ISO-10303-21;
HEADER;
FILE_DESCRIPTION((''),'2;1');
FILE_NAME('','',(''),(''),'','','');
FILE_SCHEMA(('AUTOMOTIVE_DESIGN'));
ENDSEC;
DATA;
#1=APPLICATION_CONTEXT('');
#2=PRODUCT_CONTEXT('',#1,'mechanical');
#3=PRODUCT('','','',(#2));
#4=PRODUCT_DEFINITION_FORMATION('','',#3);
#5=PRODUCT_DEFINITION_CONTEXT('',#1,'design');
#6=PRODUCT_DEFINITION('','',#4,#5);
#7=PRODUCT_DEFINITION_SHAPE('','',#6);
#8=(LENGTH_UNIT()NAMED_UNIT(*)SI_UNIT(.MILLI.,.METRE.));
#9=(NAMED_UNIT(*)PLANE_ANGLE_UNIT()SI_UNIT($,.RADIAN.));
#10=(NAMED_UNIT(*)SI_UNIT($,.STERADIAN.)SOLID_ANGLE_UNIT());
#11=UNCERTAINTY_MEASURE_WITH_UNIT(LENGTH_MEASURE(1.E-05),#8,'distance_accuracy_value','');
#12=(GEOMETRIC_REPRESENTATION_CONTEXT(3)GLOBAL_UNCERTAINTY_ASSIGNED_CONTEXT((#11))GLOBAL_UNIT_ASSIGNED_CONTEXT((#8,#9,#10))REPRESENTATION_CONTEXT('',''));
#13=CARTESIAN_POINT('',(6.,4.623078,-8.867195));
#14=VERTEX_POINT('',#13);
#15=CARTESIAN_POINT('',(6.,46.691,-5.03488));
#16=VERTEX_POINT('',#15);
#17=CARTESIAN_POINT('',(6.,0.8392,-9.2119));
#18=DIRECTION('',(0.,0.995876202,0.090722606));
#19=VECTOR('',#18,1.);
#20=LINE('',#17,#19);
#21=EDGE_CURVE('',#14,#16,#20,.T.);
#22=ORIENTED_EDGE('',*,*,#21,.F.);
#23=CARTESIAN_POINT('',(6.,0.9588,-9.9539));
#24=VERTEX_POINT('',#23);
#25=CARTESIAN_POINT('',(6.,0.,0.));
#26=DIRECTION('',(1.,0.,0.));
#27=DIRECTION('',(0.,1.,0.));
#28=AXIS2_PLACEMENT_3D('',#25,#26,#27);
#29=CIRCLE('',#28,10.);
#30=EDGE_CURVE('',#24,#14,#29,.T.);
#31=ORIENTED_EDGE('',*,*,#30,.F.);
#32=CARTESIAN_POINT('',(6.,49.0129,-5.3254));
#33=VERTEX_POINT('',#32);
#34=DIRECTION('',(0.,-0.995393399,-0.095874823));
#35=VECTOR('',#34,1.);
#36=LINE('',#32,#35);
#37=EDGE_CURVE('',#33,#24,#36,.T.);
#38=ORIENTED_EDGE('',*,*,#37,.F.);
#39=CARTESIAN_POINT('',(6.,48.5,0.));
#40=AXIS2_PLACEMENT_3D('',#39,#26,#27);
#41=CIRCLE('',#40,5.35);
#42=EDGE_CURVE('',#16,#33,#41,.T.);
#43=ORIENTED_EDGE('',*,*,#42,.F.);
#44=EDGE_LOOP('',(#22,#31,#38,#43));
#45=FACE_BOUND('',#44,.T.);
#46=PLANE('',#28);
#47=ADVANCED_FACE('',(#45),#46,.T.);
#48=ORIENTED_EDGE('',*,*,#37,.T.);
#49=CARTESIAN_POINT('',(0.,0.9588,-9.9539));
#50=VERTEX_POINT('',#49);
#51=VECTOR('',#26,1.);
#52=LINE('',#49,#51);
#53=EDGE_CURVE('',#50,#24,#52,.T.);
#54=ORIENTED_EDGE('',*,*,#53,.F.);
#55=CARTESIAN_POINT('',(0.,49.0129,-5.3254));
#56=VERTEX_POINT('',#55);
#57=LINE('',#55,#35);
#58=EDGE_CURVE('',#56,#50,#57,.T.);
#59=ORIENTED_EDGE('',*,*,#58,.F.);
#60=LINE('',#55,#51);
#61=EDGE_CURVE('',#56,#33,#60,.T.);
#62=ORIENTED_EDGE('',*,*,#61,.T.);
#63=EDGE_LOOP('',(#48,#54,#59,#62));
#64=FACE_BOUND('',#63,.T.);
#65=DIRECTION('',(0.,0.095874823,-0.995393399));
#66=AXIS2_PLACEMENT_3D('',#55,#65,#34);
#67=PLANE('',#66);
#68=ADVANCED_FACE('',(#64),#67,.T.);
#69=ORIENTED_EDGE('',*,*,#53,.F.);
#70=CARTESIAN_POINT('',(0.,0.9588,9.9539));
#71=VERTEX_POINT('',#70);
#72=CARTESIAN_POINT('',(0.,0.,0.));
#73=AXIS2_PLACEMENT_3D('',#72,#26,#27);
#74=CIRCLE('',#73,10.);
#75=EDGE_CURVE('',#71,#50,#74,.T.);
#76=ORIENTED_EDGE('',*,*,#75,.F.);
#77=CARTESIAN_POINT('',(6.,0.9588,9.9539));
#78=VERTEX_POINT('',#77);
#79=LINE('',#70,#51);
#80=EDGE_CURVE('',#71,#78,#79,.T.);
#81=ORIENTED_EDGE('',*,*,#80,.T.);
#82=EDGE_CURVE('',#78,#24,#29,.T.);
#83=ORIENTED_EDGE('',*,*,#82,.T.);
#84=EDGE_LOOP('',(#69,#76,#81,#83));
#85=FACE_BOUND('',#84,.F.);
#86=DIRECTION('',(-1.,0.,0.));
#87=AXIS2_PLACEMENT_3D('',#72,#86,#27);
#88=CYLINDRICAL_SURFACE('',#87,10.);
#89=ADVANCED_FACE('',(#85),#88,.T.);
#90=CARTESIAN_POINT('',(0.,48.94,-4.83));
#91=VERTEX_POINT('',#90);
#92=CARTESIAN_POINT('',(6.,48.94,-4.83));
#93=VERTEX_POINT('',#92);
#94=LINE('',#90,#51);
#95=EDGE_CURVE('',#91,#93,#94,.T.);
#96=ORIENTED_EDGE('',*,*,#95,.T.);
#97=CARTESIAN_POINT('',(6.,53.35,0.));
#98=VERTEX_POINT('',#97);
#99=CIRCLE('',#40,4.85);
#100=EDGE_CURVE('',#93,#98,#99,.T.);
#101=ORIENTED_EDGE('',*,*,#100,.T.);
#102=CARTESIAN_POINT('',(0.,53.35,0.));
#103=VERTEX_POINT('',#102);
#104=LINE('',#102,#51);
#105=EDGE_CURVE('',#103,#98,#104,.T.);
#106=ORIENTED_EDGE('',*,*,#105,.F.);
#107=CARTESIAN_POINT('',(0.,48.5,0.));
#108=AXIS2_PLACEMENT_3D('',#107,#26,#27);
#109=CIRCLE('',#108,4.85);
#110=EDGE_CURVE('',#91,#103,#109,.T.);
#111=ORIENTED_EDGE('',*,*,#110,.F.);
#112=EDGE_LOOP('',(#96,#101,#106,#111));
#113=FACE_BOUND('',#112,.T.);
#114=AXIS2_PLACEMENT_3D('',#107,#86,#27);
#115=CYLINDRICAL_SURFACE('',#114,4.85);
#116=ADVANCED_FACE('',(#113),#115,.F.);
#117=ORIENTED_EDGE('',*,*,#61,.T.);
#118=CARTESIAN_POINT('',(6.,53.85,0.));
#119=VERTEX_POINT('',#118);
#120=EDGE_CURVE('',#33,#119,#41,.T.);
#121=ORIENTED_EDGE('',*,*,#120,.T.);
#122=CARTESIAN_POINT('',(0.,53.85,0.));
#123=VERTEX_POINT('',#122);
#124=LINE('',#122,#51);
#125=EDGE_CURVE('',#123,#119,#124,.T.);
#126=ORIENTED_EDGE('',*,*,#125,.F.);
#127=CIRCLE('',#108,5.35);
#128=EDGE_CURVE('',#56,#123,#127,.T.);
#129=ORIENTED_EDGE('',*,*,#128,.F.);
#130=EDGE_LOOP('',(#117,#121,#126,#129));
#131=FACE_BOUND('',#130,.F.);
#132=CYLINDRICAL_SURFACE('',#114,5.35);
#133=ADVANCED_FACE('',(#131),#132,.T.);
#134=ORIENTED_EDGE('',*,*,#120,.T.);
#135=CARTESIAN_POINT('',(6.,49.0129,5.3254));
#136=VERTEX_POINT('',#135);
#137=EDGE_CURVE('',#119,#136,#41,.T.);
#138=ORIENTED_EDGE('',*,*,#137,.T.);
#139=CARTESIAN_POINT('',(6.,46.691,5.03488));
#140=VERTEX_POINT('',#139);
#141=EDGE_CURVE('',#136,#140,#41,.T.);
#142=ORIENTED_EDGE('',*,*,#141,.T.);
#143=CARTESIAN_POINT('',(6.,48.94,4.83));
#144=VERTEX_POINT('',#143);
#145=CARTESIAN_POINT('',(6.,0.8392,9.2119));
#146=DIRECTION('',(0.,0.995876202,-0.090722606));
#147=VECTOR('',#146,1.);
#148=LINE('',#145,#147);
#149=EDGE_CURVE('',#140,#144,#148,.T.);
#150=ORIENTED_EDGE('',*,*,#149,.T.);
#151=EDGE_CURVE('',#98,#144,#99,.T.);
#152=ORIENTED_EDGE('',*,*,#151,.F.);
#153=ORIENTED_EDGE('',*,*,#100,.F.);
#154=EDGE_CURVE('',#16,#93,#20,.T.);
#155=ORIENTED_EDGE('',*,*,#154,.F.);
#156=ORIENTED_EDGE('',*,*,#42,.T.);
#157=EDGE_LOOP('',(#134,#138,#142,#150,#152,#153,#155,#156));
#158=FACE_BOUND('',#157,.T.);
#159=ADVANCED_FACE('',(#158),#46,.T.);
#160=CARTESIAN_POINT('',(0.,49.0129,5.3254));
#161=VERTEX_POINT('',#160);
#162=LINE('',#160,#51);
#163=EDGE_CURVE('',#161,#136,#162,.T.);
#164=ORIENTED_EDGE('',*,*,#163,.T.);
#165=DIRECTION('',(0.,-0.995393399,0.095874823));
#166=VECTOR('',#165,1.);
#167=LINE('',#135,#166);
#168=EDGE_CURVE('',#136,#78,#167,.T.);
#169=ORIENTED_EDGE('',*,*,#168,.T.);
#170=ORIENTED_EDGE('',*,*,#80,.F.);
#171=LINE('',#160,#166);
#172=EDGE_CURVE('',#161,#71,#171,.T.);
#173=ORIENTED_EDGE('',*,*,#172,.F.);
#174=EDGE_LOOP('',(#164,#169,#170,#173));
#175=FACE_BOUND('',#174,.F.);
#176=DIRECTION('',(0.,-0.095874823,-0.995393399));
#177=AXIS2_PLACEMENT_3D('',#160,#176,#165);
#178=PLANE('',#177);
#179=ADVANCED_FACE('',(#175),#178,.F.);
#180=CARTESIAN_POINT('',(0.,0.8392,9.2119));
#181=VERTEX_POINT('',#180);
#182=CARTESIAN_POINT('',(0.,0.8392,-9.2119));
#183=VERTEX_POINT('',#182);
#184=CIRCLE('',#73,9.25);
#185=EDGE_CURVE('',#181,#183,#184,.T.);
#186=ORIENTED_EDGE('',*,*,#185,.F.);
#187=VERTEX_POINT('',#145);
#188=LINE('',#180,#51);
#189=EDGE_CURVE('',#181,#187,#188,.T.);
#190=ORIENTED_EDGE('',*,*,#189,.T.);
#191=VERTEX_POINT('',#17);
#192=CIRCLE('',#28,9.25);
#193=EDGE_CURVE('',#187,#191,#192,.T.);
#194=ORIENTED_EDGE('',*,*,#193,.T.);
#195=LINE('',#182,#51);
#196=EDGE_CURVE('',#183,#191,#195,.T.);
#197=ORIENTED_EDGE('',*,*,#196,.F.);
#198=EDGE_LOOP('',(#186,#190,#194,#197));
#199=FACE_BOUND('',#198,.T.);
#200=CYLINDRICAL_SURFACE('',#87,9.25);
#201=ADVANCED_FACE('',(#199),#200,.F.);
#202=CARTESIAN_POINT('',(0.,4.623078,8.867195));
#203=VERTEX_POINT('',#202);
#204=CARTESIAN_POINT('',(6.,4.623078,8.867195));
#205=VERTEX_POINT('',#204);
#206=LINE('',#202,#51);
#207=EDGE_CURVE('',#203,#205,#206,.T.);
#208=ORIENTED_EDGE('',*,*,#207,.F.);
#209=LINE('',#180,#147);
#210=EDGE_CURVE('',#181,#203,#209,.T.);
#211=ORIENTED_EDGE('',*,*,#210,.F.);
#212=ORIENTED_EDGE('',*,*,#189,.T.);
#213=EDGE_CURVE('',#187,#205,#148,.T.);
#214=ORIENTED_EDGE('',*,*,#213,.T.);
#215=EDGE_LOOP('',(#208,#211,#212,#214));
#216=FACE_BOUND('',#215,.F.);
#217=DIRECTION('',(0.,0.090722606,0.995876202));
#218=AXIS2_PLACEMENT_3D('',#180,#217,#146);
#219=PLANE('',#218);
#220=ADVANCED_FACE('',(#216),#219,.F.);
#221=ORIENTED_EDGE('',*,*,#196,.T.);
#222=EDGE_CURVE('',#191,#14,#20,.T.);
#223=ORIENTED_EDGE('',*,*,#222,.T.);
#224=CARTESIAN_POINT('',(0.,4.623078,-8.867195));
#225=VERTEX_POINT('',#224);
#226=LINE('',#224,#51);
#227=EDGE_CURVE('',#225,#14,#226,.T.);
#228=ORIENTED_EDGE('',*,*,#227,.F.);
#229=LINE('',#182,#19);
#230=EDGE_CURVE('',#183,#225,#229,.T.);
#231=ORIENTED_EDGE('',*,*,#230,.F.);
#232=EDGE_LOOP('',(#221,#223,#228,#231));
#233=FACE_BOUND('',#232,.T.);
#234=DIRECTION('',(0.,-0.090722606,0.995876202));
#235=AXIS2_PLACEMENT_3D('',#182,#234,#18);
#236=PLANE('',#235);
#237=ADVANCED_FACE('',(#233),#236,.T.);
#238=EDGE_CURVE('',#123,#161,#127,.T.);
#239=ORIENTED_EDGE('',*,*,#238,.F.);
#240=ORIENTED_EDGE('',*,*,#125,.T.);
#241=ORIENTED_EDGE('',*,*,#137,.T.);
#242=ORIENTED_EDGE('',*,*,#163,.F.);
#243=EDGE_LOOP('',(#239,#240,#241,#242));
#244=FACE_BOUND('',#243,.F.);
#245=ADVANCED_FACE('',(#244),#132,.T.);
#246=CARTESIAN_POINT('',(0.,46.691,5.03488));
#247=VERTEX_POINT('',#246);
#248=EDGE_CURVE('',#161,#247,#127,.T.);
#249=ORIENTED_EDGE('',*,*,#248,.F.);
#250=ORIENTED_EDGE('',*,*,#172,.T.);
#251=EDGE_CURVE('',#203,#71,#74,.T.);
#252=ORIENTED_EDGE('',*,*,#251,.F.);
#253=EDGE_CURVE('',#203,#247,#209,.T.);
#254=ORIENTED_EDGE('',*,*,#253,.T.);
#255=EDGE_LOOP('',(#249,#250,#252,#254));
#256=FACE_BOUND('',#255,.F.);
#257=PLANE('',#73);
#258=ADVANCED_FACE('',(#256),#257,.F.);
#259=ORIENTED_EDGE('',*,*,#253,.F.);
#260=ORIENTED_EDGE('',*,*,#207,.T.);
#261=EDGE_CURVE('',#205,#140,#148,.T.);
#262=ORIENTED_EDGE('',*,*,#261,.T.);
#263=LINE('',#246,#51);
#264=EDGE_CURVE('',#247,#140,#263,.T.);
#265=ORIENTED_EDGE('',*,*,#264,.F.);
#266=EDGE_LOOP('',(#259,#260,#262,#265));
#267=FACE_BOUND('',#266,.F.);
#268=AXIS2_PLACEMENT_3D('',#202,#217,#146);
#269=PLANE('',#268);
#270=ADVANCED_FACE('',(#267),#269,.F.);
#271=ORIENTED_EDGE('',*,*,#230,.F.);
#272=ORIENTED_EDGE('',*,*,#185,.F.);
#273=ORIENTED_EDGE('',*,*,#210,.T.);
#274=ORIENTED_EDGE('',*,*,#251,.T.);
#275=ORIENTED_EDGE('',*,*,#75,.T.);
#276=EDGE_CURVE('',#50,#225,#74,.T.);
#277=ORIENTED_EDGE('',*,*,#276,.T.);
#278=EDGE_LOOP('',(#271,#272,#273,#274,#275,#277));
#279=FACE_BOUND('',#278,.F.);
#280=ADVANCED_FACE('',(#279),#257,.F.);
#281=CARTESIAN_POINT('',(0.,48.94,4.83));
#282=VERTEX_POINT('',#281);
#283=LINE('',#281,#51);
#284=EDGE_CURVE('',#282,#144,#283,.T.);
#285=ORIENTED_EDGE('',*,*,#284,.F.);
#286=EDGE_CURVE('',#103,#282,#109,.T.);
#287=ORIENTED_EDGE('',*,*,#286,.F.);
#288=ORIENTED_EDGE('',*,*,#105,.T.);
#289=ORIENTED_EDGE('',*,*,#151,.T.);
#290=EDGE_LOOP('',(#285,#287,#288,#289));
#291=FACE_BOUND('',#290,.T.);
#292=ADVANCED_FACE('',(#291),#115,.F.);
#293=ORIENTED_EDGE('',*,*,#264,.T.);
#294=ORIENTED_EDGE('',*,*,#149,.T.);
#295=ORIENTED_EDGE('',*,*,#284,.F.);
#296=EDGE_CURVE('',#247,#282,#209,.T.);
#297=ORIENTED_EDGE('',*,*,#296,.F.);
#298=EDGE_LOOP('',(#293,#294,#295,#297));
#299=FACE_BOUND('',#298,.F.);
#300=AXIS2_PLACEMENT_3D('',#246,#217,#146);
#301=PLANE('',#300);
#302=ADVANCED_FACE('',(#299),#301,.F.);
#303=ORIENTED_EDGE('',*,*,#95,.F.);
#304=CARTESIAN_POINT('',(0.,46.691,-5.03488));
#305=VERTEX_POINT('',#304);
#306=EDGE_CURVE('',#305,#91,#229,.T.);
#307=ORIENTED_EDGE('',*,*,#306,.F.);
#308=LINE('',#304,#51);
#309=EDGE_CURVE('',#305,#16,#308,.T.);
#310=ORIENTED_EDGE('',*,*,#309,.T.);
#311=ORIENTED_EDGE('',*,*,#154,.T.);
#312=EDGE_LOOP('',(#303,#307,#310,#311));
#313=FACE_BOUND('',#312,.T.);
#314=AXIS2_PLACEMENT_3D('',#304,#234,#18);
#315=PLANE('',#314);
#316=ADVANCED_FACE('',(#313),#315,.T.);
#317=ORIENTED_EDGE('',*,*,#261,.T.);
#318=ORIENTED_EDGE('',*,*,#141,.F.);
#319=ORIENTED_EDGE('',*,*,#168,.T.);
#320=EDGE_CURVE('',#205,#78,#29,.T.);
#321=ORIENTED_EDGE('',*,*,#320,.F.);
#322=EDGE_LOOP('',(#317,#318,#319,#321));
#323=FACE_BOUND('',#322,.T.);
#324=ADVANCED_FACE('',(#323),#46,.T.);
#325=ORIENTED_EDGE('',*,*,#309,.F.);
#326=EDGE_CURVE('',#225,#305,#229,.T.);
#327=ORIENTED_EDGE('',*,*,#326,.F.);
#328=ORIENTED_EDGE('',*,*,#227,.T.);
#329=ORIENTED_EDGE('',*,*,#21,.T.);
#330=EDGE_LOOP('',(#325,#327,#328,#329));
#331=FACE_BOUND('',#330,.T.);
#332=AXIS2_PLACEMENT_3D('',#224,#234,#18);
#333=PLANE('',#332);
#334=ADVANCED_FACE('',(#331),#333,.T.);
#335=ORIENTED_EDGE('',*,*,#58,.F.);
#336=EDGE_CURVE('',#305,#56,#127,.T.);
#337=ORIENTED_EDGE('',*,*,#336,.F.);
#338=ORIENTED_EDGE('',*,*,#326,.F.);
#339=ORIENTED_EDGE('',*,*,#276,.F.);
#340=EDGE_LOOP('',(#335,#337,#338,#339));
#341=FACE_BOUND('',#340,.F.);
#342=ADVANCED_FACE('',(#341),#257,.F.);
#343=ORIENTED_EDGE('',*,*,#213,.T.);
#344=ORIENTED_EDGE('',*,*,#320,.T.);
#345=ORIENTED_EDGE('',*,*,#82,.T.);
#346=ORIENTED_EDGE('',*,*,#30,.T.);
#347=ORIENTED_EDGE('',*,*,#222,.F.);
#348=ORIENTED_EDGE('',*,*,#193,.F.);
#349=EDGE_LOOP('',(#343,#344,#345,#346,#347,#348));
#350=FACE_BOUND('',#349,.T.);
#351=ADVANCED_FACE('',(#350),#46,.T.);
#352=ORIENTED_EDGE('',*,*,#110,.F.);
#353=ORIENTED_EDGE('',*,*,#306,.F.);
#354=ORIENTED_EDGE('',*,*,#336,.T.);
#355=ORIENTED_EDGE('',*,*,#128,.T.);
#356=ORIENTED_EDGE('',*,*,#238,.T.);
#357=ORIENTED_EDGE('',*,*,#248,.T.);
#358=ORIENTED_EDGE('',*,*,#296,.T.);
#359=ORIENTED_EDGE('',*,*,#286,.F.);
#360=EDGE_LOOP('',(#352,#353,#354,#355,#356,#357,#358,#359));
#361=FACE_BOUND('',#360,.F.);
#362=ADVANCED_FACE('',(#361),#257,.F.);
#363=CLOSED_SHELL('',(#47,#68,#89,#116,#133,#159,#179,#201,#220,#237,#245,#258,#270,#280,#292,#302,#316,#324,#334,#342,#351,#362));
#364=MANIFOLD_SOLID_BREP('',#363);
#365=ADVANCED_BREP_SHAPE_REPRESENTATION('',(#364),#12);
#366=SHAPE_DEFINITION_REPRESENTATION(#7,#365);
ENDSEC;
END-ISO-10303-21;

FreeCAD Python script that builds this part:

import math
import FreeCAD as App
import Part
import Sketcher
from FreeCAD import Vector
Q = App.Units.Quantity

doc = App.newDocument("Part")
body = doc.addObject("PartDesign::Body", "Body")

sketch1 = body.newObject("Sketcher::SketchObject", "Sketch")
sketch1.AttachmentSupport = (doc.getObject("YZ_Plane"), [""])
sketch1.MapMode = "FlatFace"
sketch1.addGeometry(Part.ArcOfCircle(Part.Circle(Vector(0, 0, 0), Vector(0, 0, 1), 10), math.radians(84), math.radians(276)), False)
sketch1.addGeometry(Part.LineSegment(Vector(1, -10, 0), Vector(49, -5.3, 0)), False)
sketch1.addGeometry(Part.ArcOfCircle(Part.Circle(Vector(48.5, 0, 0), Vector(0, 0, 1), 5.3), math.radians(-84), math.radians(84)), False)
sketch1.addGeometry(Part.LineSegment(Vector(49, 5.3, 0), Vector(1, 10, 0)), False)
sketch1.addGeometry(Part.ArcOfCircle(Part.Circle(Vector(0, 0, 0), Vector(0, 0, 1), 9.2), math.radians(85), math.radians(275)), False)
sketch1.addGeometry(Part.LineSegment(Vector(0.8, 9.2, 0), Vector(48.9, 4.8, 0)), False)
sketch1.addGeometry(Part.ArcOfCircle(Part.Circle(Vector(48.5, 0, 0), Vector(0, 0, 1), 4.8), math.radians(-85), math.radians(85)), False)
sketch1.addGeometry(Part.LineSegment(Vector(48.9, -4.8, 0), Vector(0.8, -9.2, 0)), False)
sketch1.addConstraint(Sketcher.Constraint("Tangent", 0, 2, 1, 1))
sketch1.addConstraint(Sketcher.Constraint("Tangent", 1, 2, 2, 1))
sketch1.addConstraint(Sketcher.Constraint("Tangent", 2, 2, 3, 1))
sketch1.addConstraint(Sketcher.Constraint("Tangent", 3, 2, 0, 1))
sketch1.addConstraint(Sketcher.Constraint("Tangent", 4, 1, 5, 1))
sketch1.addConstraint(Sketcher.Constraint("Tangent", 5, 2, 6, 2))
sketch1.addConstraint(Sketcher.Constraint("Tangent", 6, 1, 7, 1))
sketch1.addConstraint(Sketcher.Constraint("Tangent", 7, 2, 4, 2))
sketch1.addConstraint(Sketcher.Constraint("Coincident", 0, 3, -1, 1))
sketch1.addConstraint(Sketcher.Constraint("Coincident", 4, 3, -1, 1))
sketch1.addConstraint(Sketcher.Constraint("Coincident", 6, 3, 2, 3))
sketch1.addConstraint(Sketcher.Constraint("PointOnObject", 2, 3, -1))
sketch1.addConstraint(Sketcher.Constraint("Radius", 0, Q("10 mm")))
sketch1.addConstraint(Sketcher.Constraint("Radius", 2, Q("5.35 mm")))
sketch1.addConstraint(Sketcher.Constraint("Radius", 4, Q("9.25 mm")))
sketch1.addConstraint(Sketcher.Constraint("Radius", 6, Q("4.85 mm")))
sketch1.addConstraint(Sketcher.Constraint("DistanceX", -1, 1, 2, 3, Q("48.5 mm")))
pad1 = body.newObject("PartDesign::Pad", "Pad")
pad1.Profile = sketch1
pad1.Length = 6

doc.recompute()
